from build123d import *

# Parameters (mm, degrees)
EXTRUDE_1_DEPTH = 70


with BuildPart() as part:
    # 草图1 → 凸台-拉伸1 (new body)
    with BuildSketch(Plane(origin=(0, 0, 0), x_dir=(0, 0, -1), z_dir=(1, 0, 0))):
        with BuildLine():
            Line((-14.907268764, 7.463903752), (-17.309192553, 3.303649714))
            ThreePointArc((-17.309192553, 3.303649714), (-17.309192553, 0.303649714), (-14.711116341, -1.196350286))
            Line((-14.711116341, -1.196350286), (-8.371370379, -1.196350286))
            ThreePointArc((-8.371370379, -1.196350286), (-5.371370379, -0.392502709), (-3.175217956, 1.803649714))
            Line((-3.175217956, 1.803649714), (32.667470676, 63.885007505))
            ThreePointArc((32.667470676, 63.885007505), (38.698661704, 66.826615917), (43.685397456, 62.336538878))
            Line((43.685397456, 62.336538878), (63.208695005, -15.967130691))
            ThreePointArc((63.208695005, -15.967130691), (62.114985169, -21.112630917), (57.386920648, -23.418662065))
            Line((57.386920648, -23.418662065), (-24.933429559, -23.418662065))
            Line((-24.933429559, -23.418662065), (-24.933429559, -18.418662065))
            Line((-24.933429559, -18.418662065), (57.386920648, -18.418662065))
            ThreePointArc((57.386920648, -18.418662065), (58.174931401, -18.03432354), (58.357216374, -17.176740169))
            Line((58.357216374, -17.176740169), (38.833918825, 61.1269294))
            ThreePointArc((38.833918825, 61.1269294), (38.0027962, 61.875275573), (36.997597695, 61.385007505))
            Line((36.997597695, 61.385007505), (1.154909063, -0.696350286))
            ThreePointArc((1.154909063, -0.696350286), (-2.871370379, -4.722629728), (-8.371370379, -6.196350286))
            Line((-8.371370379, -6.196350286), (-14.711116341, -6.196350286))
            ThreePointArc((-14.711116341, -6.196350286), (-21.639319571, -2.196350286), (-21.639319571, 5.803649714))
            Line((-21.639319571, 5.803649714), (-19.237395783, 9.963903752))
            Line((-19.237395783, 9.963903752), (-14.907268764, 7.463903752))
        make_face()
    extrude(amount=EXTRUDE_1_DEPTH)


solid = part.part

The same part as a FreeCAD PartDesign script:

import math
import FreeCAD as App
import Part
import Sketcher
from FreeCAD import Vector
Q = App.Units.Quantity

doc = App.newDocument("Part")
body = doc.addObject("PartDesign::Body", "Body")

# Sketch on YZ plane
sketch1 = doc.addObject("Sketcher::SketchObject", "Sketch")
body.addObject(sketch1)
sketch1.AttachmentSupport = (doc.YZ_Plane, [""])
sketch1.MapMode = "FlatFace"
sketch1.addGeometry([
    Part.LineSegment(Vector(3.3, 17.3, 0), Vector(7.5, 14.9, 0)),  # 0
    Part.LineSegment(Vector(7.5, 14.9, 0), Vector(10, 19.2, 0)),  # 1
    Part.LineSegment(Vector(10, 19.2, 0), Vector(5.8, 21.6, 0)),  # 2
    Part.ArcOfCircle(Part.Circle(Vector(1.8, 14.7, 0), Vector(0, 0, 1), 8), math.radians(60), math.radians(180)),  # 3
    Part.LineSegment(Vector(-6.2, 14.7, 0), Vector(-6.2, 8.4, 0)),  # 4
    Part.ArcOfCircle(Part.Circle(Vector(4.8, 8.4, 0), Vector(0, 0, 1), 11), math.radians(180), math.radians(240)),  # 5
    Part.LineSegment(Vector(-0.7, -1.2, 0), Vector(61.4, -37, 0)),  # 6
    Part.ArcOfCircle(Part.Circle(Vector(60.9, -37.9, 0), Vector(0, 0, 1), 1), math.radians(-76), math.radians(60)),  # 7
    Part.LineSegment(Vector(61.1, -38.8, 0), Vector(-17.2, -58.4, 0)),  # 8
    Part.ArcOfCircle(Part.Circle(Vector(-17.4, -57.4, 0), Vector(0, 0, 1), 1), math.radians(-180), math.radians(-76)),  # 9
    Part.LineSegment(Vector(-18.4, -57.4, 0), Vector(-18.4, 24.9, 0)),  # 10
    Part.LineSegment(Vector(-18.4, 24.9, 0), Vector(-23.4, 24.9, 0)),  # 11
    Part.LineSegment(Vector(-23.4, 24.9, 0), Vector(-23.4, -57.4, 0)),  # 12
    Part.ArcOfCircle(Part.Circle(Vector(-17.4, -57.4, 0), Vector(0, 0, 1), 6), math.radians(-180), math.radians(-76)),  # 13
    Part.LineSegment(Vector(-16, -63.2, 0), Vector(62.3, -43.7, 0)),  # 14
    Part.ArcOfCircle(Part.Circle(Vector(60.9, -37.9, 0), Vector(0, 0, 1), 6), math.radians(-76), math.radians(60)),  # 15
    Part.LineSegment(Vector(63.9, -32.7, 0), Vector(1.8, 3.2, 0)),  # 16
    Part.ArcOfCircle(Part.Circle(Vector(4.8, 8.4, 0), Vector(0, 0, 1), 6), math.radians(180), math.radians(240)),  # 17
    Part.LineSegment(Vector(-1.2, 8.4, 0), Vector(-1.2, 14.7, 0)),  # 18
    Part.ArcOfCircle(Part.Circle(Vector(1.8, 14.7, 0), Vector(0, 0, 1), 3), math.radians(60), math.radians(180)),  # 19
], False)
sketch1.addConstraint([
    Sketcher.Constraint("Coincident", 0, 2, 1, 1),
    Sketcher.Constraint("Coincident", 1, 2, 2, 1),
    Sketcher.Constraint("Tangent", 2, 2, 3, 1),
    Sketcher.Constraint("Tangent", 3, 2, 4, 1),
    Sketcher.Constraint("Tangent", 4, 2, 5, 1),
    Sketcher.Constraint("Tangent", 5, 2, 6, 1),
    Sketcher.Constraint("Tangent", 6, 2, 7, 2),
    Sketcher.Constraint("Tangent", 7, 1, 8, 1),
    Sketcher.Constraint("Tangent", 8, 2, 9, 2),
    Sketcher.Constraint("Tangent", 9, 1, 10, 1),
    Sketcher.Constraint("Coincident", 10, 2, 11, 1),
    Sketcher.Constraint("Coincident", 11, 2, 12, 1),
    Sketcher.Constraint("Tangent", 12, 2, 13, 1),
    Sketcher.Constraint("Tangent", 13, 2, 14, 1),
    Sketcher.Constraint("Tangent", 14, 2, 15, 1),
    Sketcher.Constraint("Tangent", 15, 2, 16, 1),
    Sketcher.Constraint("Tangent", 16, 2, 17, 2),
    Sketcher.Constraint("Tangent", 17, 1, 18, 1),
    Sketcher.Constraint("Tangent", 18, 2, 19, 2),
    Sketcher.Constraint("Tangent", 19, 1, 0, 1),
    Sketcher.Constraint("Vertical", 4),
    Sketcher.Constraint("Vertical", 10),
    Sketcher.Constraint("Horizontal", 11),
    Sketcher.Constraint("Vertical", 12),
    Sketcher.Constraint("Vertical", 18),
    Sketcher.Constraint("Coincident", 13, 3, 9, 3),
    Sketcher.Constraint("Coincident", 15, 3, 7, 3),
    Sketcher.Constraint("Coincident", 17, 3, 5, 3),
    Sketcher.Constraint("Coincident", 19, 3, 3, 3),
    Sketcher.Constraint("Equal", 7, 9),
    Sketcher.Constraint("Equal", 13, 15),
    Sketcher.Constraint("Equal", 15, 17),
    Sketcher.Constraint("Perpendicular", 0, 1),
    Sketcher.Constraint("Perpendicular", 1, 2),
    Sketcher.Constraint("Parallel", 2, 6),
    Sketcher.Constraint("Parallel", 6, 16),
    Sketcher.Constraint("Vertical", 19, 3, 16, 2),
    Sketcher.Constraint("Radius", 3, 8.0),
    Sketcher.Constraint("Radius", 5, 11.0),
    Sketcher.Constraint("Radius", 7, 1.0),
    Sketcher.Constraint("Angle", 8, Q("-166 deg")),
    Sketcher.Constraint("DistanceY", 10, 1, 10, 2, 82.32035),
    Sketcher.Constraint("DistanceY", 5, 3, 0, 2, 6.535898),
    Sketcher.Constraint("DistanceY", 16, 2, 3, 3, 11.535898),
    Sketcher.Constraint("Distance", 8, 80.700829),
    Sketcher.Constraint("DistanceX", -1, 1, 3, 3, 1.80365),
    Sketcher.Constraint("DistanceY", -1, 1, 5, 3, 8.37137),
    Sketcher.Constraint("DistanceY", 9, 3, -1, 1, 57.386921),
])
pad1 = doc.addObject("PartDesign::Pad", "Pad")
body.addObject(pad1)
pad1.Profile = sketch1
pad1.Length = 70

doc.recompute()
